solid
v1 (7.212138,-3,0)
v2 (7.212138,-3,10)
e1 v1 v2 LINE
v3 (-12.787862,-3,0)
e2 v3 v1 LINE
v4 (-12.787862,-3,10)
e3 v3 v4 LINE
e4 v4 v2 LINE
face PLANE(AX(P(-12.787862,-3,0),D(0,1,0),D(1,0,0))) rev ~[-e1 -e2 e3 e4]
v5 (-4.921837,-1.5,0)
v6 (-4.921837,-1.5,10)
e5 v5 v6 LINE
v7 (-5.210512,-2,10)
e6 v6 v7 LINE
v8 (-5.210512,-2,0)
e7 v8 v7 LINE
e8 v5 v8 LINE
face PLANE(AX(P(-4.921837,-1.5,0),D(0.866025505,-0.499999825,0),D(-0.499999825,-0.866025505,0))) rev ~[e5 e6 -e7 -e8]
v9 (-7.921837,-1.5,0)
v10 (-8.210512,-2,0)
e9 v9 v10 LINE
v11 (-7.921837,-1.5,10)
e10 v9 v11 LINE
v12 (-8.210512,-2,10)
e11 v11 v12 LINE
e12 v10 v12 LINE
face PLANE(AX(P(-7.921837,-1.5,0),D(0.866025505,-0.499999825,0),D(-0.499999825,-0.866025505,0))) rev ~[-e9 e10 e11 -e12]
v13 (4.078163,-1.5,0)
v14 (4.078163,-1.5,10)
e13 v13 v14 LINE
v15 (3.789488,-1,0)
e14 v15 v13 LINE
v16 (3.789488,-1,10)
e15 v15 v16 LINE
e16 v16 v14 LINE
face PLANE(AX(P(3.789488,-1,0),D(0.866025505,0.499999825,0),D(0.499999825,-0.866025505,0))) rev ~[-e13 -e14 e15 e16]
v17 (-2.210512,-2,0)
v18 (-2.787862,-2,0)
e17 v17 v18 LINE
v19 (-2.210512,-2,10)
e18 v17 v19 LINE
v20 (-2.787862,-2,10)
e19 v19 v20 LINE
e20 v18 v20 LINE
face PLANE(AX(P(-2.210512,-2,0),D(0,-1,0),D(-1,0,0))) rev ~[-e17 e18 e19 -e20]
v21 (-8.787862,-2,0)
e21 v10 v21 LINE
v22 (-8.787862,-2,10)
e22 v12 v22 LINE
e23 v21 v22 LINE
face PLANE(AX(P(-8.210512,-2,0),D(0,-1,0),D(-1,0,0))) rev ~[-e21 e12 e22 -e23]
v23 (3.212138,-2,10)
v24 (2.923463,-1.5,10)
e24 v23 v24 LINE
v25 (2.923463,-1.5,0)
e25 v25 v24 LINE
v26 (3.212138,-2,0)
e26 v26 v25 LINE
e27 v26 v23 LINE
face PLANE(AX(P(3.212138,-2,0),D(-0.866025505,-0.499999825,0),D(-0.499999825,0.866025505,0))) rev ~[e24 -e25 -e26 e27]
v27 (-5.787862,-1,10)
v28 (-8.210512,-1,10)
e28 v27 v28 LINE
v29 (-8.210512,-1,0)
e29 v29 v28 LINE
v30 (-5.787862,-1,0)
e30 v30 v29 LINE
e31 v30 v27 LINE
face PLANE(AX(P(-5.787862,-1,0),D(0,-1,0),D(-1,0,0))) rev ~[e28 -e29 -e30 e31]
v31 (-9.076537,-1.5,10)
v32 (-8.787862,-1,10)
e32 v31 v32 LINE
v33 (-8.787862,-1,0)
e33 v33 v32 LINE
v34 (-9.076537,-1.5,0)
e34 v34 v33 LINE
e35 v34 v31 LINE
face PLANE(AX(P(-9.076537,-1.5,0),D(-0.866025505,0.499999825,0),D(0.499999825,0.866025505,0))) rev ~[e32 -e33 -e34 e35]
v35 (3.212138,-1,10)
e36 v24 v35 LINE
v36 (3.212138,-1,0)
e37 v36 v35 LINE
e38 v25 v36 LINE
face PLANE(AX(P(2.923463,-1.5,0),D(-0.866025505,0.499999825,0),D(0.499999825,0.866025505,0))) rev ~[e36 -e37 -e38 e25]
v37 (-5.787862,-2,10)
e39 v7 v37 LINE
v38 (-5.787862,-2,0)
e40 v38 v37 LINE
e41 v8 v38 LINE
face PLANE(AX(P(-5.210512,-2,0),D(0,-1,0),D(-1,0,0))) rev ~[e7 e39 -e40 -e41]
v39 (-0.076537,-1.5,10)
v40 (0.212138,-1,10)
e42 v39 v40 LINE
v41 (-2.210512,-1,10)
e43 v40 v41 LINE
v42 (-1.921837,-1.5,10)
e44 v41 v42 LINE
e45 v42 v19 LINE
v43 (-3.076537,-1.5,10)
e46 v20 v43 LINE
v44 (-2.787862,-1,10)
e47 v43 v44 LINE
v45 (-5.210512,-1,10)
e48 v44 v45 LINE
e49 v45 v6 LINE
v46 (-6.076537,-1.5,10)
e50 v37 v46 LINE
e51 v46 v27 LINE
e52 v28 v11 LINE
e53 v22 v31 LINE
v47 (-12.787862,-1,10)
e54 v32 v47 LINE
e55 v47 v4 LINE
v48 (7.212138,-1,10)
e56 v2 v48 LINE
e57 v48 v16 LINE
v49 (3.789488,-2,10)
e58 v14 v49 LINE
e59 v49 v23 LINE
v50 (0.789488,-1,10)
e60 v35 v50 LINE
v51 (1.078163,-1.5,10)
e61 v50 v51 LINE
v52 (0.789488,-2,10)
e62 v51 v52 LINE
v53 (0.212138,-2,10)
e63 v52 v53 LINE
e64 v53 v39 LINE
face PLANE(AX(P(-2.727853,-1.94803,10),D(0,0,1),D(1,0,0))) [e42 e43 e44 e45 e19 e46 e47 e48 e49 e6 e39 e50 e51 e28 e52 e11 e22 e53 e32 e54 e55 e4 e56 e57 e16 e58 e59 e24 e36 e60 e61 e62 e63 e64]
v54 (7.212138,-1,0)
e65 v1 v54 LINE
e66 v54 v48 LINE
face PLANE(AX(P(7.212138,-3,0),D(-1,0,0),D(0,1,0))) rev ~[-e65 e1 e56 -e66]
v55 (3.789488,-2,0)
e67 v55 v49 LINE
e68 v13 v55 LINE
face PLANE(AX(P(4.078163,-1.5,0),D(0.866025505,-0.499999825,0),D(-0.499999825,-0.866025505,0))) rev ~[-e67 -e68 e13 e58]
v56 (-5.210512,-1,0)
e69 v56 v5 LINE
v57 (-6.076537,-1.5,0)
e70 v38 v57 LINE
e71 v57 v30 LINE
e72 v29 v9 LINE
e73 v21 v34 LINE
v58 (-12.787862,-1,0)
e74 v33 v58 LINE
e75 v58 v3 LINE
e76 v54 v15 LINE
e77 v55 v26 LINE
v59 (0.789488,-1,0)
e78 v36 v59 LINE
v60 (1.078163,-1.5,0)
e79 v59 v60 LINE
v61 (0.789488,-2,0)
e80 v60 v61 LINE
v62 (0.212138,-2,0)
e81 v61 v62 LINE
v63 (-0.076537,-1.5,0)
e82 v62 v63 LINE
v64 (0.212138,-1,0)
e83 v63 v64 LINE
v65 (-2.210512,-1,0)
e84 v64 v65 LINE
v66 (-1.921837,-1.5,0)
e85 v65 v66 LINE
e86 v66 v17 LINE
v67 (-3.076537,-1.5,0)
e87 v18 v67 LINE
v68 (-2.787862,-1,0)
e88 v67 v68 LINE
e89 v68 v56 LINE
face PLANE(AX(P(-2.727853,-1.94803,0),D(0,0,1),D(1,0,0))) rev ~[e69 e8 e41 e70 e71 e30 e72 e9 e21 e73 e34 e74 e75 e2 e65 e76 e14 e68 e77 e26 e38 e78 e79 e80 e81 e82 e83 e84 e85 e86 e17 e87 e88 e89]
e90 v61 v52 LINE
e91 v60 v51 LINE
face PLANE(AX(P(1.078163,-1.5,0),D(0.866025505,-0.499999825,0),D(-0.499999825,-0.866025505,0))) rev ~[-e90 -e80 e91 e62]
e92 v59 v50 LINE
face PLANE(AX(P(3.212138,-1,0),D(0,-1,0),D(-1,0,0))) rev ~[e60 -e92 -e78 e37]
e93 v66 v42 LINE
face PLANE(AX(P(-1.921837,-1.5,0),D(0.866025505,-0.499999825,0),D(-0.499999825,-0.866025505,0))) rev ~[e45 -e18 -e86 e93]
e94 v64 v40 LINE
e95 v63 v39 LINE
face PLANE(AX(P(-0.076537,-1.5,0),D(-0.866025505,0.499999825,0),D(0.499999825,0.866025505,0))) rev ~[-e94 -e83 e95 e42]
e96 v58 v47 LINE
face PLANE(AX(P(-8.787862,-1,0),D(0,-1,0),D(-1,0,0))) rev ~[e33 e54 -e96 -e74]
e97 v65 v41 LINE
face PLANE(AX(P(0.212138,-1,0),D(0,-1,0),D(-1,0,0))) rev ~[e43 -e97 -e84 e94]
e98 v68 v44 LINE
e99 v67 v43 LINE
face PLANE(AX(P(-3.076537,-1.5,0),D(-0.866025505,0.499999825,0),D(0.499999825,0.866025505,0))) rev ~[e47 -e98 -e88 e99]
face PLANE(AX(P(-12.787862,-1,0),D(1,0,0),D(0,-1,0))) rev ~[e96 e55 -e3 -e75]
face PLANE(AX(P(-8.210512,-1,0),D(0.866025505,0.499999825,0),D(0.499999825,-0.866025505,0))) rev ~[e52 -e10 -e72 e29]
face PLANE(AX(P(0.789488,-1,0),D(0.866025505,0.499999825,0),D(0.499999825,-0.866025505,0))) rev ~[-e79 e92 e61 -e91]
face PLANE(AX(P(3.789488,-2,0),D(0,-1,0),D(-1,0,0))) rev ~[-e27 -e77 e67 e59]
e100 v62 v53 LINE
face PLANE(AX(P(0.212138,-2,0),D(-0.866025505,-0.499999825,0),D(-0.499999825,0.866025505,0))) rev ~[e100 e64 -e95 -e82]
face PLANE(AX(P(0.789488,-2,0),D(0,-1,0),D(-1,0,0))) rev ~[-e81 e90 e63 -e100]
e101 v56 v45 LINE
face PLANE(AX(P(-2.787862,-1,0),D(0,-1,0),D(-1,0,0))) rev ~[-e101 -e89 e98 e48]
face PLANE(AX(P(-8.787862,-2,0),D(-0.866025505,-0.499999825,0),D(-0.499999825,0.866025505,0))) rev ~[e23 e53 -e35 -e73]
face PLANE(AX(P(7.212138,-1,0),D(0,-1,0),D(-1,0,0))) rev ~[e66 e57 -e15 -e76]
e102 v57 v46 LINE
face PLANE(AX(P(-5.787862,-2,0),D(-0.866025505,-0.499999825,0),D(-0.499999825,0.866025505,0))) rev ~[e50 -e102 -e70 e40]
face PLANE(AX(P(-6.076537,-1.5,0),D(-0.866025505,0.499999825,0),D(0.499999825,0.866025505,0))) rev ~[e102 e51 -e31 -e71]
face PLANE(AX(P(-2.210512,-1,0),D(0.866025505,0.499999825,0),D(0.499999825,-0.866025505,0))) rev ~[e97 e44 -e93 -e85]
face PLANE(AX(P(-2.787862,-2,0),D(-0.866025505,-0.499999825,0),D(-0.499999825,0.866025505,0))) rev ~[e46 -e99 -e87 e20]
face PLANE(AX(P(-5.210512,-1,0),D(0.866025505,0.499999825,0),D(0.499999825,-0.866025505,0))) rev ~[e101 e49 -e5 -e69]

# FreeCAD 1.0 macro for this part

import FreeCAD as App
import Part
import Sketcher
Q = App.Units.Quantity


def add_polygon(sketch, points):
    """Adds a closed chain of lines whose ends are joined by coincident constraints."""
    first, n = sketch.GeometryCount, len(points)
    for a, b in zip(points, points[1:] + points[:1]):
        sketch.addGeometry(Part.LineSegment(App.Vector(*a, 0), App.Vector(*b, 0)), False)
    for i in range(n):
        sketch.addConstraint(Sketcher.Constraint("Coincident", first + i, 2, first + (i + 1) % n, 1))

doc = App.newDocument("Part")
body = doc.addObject("PartDesign::Body", "Body")

sketch1 = doc.addObject("Sketcher::SketchObject", "Sketch")
body.addObject(sketch1)
sketch1.AttachmentSupport = (doc.XY_Plane, [""])
sketch1.MapMode = "FlatFace"
add_polygon(sketch1, [(-12.787862, -3), (7.212138, -3), (7.212138, -1), (3.789488, -1), (4.078163, -1.5), (3.789488, -2), (3.212138, -2), (2.923463, -1.5), (3.212138, -1), (0.789488, -1), (1.078163, -1.5), (0.789488, -2), (0.212138, -2), (-0.076537, -1.5), (0.212138, -1), (-2.210512, -1), (-1.921837, -1.5), (-2.210512, -2), (-2.787862, -2), (-3.076537, -1.5), (-2.787862, -1), (-5.210512, -1), (-4.921837, -1.5), (-5.210512, -2), (-5.787862, -2), (-6.076537, -1.5), (-5.787862, -1), (-8.210512, -1), (-7.921837, -1.5), (-8.210512, -2), (-8.787862, -2), (-9.076537, -1.5), (-8.787862, -1), (-12.787862, -1)])
sketch1.addConstraint([
    Sketcher.Constraint("Horizontal", 0),
    Sketcher.Constraint("Vertical", 1),
    Sketcher.Constraint("Horizontal", 2),
    Sketcher.Constraint("Horizontal", 5),
    Sketcher.Constraint("Horizontal", 8),
    Sketcher.Constraint("Horizontal", 11),
    Sketcher.Constraint("Horizontal", 14),
    Sketcher.Constraint("Horizontal", 17),
    Sketcher.Constraint("Horizontal", 20),
    Sketcher.Constraint("Horizontal", 23),
    Sketcher.Constraint("Horizontal", 26),
    Sketcher.Constraint("Horizontal", 29),
    Sketcher.Constraint("Horizontal", 32),
    Sketcher.Constraint("Vertical", 33),
    Sketcher.Constraint("Parallel", 3, 6),
    Sketcher.Constraint("Parallel", 4, 7),
    Sketcher.Constraint("Parallel", 6, 9),
    Sketcher.Constraint("Parallel", 7, 10),
    Sketcher.Constraint("Parallel", 9, 12),
    Sketcher.Constraint("Parallel", 10, 13),
    Sketcher.Constraint("Parallel", 12, 15),
    Sketcher.Constraint("Parallel", 13, 16),
    Sketcher.Constraint("Parallel", 15, 18),
    Sketcher.Constraint("Parallel", 16, 19),
    Sketcher.Constraint("Parallel", 18, 21),
    Sketcher.Constraint("Parallel", 19, 22),
    Sketcher.Constraint("Parallel", 21, 24),
    Sketcher.Constraint("Parallel", 22, 25),
    Sketcher.Constraint("Parallel", 24, 27),
    Sketcher.Constraint("Parallel", 25, 28),
    Sketcher.Constraint("Parallel", 27, 30),
    Sketcher.Constraint("Parallel", 28, 31),
    Sketcher.Constraint("Horizontal", 3, 2, 6, 2),
    Sketcher.Constraint("Horizontal", 2, 2, 7, 2),
    Sketcher.Constraint("Horizontal", 6, 2, 9, 2),
    Sketcher.Constraint("Horizontal", 5, 2, 10, 2),
    Sketcher.Constraint("Horizontal", 9, 2, 12, 2),
    Sketcher.Constraint("Horizontal", 8, 2, 13, 2),
    Sketcher.Constraint("Horizontal", 12, 2, 15, 2),
    Sketcher.Constraint("Horizontal", 11, 2, 16, 2),
    Sketcher.Constraint("Horizontal", 15, 2, 18, 2),
    Sketcher.Constraint("Horizontal", 14, 2, 19, 2),
    Sketcher.Constraint("Horizontal", 18, 2, 21, 2),
    Sketcher.Constraint("Horizontal", 17, 2, 22, 2),
    Sketcher.Constraint("Horizontal", 21, 2, 24, 2),
    Sketcher.Constraint("Horizontal", 20, 2, 25, 2),
    Sketcher.Constraint("Horizontal", 24, 2, 27, 2),
    Sketcher.Constraint("Horizontal", 23, 2, 28, 2),
    Sketcher.Constraint("Horizontal", 27, 2, 30, 2),
    Sketcher.Constraint("Horizontal", 26, 2, 31, 2),
    Sketcher.Constraint("Vertical", 2, 2, 4, 2),
    Sketcher.Constraint("Vertical", 5, 2, 7, 2),
    Sketcher.Constraint("Equal", 5, 11),
    Sketcher.Constraint("Equal", 8, 14),
    Sketcher.Constraint("Equal", 11, 17),
    Sketcher.Constraint("Equal", 14, 20),
    Sketcher.Constraint("Equal", 17, 23),
    Sketcher.Constraint("Equal", 20, 26),
    Sketcher.Constraint("Equal", 23, 29),
    Sketcher.Constraint("DistanceX", 0, 1, 0, 2, Q("20 mm")),
    Sketcher.Constraint("DistanceX", 32, 2, 32, 1, Q("4 mm")),
    Sketcher.Constraint("DistanceY", 1, 1, 1, 2, Q("2 mm")),
    Sketcher.Constraint("Angle", 3, Q("-60.000012 deg")),
    Sketcher.Constraint("DistanceY", 0, 2, -1, 1, Q("3 mm")),
    Sketcher.Constraint("DistanceY", 4, 2, -1, 1, Q("2 mm")),
    Sketcher.Constraint("DistanceX", 5, 2, 0, 2, Q("4 mm")),
    Sketcher.Constraint("DistanceX", 2, 2, 2, 1, Q("3.42265 mm")),
    Sketcher.Constraint("DistanceX", -1, 1, 0, 2, Q("7.212138 mm")),
])
pad1 = doc.addObject("PartDesign::Pad", "Pad")
body.addObject(pad1)
pad1.Profile = sketch1
pad1.Length = 10

doc.recompute()
